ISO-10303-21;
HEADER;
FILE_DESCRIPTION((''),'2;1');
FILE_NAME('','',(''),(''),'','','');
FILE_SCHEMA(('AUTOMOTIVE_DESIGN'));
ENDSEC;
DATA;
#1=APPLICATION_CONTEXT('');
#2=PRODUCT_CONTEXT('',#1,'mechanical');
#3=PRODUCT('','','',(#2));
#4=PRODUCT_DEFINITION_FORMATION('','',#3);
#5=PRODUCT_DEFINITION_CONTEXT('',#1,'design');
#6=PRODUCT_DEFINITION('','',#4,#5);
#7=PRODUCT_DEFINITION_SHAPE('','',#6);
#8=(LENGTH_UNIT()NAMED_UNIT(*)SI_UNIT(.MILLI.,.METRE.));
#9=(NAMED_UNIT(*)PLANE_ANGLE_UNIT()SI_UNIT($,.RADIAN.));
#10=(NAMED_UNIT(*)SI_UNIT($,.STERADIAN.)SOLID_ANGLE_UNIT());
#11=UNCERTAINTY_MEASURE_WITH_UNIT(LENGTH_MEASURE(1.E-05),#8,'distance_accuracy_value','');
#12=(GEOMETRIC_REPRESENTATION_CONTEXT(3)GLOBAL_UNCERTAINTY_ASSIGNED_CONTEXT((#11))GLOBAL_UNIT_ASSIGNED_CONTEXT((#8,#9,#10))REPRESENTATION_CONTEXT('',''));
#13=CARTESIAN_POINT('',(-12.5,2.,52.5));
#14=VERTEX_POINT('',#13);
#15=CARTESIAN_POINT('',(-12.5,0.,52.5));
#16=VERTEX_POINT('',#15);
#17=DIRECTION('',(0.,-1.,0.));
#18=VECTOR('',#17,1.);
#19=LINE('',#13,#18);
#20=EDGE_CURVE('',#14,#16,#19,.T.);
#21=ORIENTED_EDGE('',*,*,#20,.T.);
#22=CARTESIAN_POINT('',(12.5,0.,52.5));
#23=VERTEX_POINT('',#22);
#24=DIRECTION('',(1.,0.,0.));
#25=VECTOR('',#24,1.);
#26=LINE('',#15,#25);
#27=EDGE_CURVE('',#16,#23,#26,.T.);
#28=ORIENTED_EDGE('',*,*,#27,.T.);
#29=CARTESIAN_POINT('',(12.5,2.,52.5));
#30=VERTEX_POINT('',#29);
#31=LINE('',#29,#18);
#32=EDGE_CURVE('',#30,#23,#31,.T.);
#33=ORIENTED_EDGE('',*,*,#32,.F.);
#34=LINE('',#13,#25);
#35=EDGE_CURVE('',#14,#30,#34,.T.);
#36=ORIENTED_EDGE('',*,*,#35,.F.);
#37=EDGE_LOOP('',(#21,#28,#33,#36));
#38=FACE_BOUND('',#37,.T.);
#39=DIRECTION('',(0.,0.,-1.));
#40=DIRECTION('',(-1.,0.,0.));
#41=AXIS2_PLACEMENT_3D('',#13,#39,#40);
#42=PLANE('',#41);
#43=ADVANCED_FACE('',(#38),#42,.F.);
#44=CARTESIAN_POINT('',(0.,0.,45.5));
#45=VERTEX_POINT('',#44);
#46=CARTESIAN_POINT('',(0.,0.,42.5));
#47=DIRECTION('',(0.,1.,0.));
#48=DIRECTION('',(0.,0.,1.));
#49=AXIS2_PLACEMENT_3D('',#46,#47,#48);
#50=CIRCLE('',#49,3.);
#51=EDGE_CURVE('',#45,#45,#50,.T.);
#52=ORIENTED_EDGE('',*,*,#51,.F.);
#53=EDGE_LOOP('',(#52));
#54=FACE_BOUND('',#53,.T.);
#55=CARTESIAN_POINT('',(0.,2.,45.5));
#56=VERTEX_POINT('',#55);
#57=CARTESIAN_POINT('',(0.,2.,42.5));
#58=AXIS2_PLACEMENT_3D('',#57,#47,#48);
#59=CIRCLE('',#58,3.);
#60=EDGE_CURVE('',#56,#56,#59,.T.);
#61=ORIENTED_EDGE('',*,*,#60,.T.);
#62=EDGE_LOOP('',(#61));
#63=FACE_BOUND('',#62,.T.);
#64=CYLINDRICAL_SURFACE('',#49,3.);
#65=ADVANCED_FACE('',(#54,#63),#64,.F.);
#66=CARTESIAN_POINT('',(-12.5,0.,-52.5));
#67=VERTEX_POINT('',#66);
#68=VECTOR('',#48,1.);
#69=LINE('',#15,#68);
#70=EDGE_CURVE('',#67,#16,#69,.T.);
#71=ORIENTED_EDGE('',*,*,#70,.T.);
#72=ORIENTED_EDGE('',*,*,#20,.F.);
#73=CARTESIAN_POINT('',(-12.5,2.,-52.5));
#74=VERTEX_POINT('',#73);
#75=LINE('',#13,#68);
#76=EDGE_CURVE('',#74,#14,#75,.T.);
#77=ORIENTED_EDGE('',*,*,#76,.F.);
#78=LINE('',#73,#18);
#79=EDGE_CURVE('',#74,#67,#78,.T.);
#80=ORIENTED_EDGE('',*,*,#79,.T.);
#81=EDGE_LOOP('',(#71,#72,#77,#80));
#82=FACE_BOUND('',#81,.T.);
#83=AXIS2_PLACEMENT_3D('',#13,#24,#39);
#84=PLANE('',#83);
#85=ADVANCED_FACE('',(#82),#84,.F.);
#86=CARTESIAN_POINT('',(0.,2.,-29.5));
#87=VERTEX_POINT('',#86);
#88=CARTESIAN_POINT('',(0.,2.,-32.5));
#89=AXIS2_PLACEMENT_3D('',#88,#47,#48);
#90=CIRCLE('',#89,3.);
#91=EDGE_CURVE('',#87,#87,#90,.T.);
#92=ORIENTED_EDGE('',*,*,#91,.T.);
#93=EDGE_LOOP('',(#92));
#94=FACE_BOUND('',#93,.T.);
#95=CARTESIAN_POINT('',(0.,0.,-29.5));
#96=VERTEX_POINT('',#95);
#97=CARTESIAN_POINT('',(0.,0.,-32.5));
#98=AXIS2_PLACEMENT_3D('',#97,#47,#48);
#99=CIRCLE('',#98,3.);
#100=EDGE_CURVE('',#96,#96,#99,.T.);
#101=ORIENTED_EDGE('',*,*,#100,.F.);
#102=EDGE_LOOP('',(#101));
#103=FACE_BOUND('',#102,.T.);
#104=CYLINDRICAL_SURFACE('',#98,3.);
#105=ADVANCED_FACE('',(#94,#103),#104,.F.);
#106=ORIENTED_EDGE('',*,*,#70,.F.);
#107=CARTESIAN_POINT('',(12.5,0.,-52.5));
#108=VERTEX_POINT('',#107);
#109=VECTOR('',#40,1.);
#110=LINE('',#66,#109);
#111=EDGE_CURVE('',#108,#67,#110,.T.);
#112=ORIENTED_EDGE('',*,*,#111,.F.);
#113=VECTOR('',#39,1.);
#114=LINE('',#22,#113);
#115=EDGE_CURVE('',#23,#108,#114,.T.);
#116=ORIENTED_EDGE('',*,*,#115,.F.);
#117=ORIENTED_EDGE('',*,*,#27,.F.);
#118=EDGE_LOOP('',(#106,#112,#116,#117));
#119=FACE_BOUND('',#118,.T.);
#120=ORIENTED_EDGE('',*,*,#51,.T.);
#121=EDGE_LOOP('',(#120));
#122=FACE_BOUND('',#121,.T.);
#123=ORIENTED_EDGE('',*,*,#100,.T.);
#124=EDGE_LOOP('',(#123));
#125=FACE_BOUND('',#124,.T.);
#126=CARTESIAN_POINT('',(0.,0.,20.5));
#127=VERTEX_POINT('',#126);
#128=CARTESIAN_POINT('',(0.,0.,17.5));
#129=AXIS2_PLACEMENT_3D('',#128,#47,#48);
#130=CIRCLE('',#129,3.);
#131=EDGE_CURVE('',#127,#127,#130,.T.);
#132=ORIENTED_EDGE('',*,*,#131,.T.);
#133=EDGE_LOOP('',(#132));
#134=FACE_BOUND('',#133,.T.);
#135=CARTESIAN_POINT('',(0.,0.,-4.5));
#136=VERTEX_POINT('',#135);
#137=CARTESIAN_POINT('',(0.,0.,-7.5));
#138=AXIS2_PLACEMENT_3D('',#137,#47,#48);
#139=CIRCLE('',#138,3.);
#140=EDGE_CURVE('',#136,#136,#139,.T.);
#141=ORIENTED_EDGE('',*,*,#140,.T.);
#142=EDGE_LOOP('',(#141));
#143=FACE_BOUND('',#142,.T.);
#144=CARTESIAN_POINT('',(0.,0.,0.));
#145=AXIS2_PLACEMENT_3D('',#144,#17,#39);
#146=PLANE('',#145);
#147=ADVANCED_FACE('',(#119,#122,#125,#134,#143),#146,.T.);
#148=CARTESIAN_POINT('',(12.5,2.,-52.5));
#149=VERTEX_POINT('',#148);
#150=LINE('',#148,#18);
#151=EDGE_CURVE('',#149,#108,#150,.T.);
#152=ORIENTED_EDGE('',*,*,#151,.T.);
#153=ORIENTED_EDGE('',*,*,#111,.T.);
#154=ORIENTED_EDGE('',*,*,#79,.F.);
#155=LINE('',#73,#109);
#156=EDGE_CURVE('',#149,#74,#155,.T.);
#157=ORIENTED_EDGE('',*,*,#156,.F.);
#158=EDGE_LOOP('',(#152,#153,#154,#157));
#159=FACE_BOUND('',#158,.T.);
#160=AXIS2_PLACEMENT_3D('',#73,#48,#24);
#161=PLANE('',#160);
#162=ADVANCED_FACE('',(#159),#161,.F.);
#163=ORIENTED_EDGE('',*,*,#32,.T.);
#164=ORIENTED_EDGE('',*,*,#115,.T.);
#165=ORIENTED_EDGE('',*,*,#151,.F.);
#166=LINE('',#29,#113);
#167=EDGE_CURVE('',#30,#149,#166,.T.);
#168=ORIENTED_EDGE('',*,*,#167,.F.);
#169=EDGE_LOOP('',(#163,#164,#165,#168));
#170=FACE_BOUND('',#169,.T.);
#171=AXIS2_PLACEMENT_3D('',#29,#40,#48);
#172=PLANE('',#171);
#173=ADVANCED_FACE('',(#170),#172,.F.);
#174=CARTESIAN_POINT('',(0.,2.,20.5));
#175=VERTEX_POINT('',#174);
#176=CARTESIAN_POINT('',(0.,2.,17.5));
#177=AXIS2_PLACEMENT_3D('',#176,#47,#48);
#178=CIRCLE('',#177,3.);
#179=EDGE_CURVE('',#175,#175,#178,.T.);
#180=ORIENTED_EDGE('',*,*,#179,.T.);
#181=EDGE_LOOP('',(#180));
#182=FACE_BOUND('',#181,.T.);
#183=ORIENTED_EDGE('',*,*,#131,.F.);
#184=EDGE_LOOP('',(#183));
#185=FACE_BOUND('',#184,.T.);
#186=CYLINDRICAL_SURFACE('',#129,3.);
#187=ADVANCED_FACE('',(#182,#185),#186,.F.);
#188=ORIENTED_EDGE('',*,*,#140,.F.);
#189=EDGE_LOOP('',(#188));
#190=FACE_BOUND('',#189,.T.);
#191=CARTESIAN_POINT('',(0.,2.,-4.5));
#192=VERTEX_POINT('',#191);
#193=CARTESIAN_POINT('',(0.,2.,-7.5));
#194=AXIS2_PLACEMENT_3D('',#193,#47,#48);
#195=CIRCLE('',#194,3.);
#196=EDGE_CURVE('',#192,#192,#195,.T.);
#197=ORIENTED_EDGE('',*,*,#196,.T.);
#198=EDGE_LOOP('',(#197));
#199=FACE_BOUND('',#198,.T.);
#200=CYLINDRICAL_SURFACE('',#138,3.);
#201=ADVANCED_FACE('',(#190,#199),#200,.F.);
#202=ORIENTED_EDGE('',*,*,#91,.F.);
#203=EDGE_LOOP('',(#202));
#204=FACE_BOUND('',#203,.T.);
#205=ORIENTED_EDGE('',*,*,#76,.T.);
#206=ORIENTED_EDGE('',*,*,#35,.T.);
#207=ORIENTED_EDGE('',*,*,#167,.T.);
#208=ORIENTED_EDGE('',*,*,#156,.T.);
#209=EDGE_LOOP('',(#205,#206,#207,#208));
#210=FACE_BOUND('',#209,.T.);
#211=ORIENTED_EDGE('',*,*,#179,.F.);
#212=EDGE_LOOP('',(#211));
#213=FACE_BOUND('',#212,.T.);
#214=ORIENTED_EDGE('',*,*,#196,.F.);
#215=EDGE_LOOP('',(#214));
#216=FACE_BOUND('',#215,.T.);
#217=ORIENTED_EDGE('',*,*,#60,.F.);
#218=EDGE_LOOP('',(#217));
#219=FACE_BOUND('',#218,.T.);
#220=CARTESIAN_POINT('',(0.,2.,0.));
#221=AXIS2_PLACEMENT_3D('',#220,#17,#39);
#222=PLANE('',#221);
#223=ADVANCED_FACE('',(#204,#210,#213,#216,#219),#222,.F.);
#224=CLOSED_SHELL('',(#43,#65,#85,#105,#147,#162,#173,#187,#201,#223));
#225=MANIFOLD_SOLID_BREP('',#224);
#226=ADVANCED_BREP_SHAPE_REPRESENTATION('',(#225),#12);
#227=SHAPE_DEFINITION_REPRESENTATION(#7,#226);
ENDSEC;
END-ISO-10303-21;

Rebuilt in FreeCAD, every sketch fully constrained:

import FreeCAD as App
import Part
import Sketcher


def add_polygon(sketch, points):
    """Adds a closed chain of lines whose ends are joined by coincident constraints."""
    first, n = sketch.GeometryCount, len(points)
    for a, b in zip(points, points[1:] + points[:1]):
        sketch.addGeometry(Part.LineSegment(App.Vector(*a, 0), App.Vector(*b, 0)), False)
    for i in range(n):
        sketch.addConstraint(Sketcher.Constraint("Coincident", first + i, 2, first + (i + 1) % n, 1))

doc = App.newDocument("Part")
params = doc.addObject("Spreadsheet::Sheet", "Params")
for row, (alias, value) in enumerate([
    ("sketch1_width", "25 mm"),
    ("sketch1_height", "105 mm"),
    ("pad1_length", "2 mm"),
    ("sketch2_diameter", "6 mm"),
], start=1):
    params.set(f"A{row}", alias)
    params.set(f"B{row}", "=" + value)
    params.setAlias(f"B{row}", alias)

body = doc.addObject("PartDesign::Body", "Body")

sketch1 = doc.addObject("Sketcher::SketchObject", "Sketch")
body.addObject(sketch1)
sketch1.AttachmentSupport = (doc.XZ_Plane, [""])
sketch1.MapMode = "FlatFace"
add_polygon(sketch1, [(-12, -52), (-12, 52), (12, 52), (12, -52)])
sketch1.addConstraint([
    Sketcher.Constraint("Vertical", 0),
    Sketcher.Constraint("Horizontal", 1),
    Sketcher.Constraint("Vertical", 2),
    Sketcher.Constraint("Horizontal", 3),
    Sketcher.Constraint("Symmetric", 0, 2, 2, 2, -1, 1),
    Sketcher.Constraint("DistanceX", 1, 1, 1, 2, 25.0),
    Sketcher.Constraint("DistanceY", 0, 1, 0, 2, 105.0),
])
sketch1.setExpression("Constraints[9]", "Params.sketch1_width")
sketch1.setExpression("Constraints[10]", "Params.sketch1_height")
pad1 = doc.addObject("PartDesign::Pad", "Pad")
body.addObject(pad1)
pad1.Profile = sketch1
pad1.setExpression("Length", "Params.pad1_length")
pad1.Reversed = True

sketch2 = doc.addObject("Sketcher::SketchObject", "Sketch001")
body.addObject(sketch2)
sketch2.AttachmentSupport = (doc.XZ_Plane, [""])
sketch2.MapMode = "FlatFace"
sketch2.AttachmentOffset = App.Placement(App.Vector(0, 0, -2), App.Rotation())
sketch2.addGeometry([
    Part.Circle(App.Vector(0, 42.5, 0), App.Vector(0, 0, 1), 3),
    Part.Circle(App.Vector(0, 17.5, 0), App.Vector(0, 0, 1), 3),
    Part.Circle(App.Vector(0, -7.5, 0), App.Vector(0, 0, 1), 3),
    Part.Circle(App.Vector(0, -32.5, 0), App.Vector(0, 0, 1), 3),
], False)
sketch2.addConstraint([
    Sketcher.Constraint("Equal", 0, 1),
    Sketcher.Constraint("Equal", 1, 2),
    Sketcher.Constraint("Equal", 2, 3),
    Sketcher.Constraint("PointOnObject", 0, 3, -2),
    Sketcher.Constraint("PointOnObject", 1, 3, -2),
    Sketcher.Constraint("PointOnObject", 2, 3, -2),
    Sketcher.Constraint("PointOnObject", 3, 3, -2),
    Sketcher.Constraint("Diameter", 0, 6.0),
    Sketcher.Constraint("DistanceY", 1, 3, 0, 3, 25.0),
    Sketcher.Constraint("DistanceY", 2, 3, 1, 3, 25.0),
    Sketcher.Constraint("DistanceY", 3, 3, 2, 3, 25.0),
    Sketcher.Constraint("DistanceY", -1, 1, 0, 3, 42.5),
])
sketch2.setExpression("Constraints[7]", "Params.sketch2_diameter")
pocket1 = doc.addObject("PartDesign::Pocket", "Pocket")
body.addObject(pocket1)
pocket1.Profile = sketch2
pocket1.Type = "ThroughAll"
pocket1.Reversed = True

doc.recompute()
